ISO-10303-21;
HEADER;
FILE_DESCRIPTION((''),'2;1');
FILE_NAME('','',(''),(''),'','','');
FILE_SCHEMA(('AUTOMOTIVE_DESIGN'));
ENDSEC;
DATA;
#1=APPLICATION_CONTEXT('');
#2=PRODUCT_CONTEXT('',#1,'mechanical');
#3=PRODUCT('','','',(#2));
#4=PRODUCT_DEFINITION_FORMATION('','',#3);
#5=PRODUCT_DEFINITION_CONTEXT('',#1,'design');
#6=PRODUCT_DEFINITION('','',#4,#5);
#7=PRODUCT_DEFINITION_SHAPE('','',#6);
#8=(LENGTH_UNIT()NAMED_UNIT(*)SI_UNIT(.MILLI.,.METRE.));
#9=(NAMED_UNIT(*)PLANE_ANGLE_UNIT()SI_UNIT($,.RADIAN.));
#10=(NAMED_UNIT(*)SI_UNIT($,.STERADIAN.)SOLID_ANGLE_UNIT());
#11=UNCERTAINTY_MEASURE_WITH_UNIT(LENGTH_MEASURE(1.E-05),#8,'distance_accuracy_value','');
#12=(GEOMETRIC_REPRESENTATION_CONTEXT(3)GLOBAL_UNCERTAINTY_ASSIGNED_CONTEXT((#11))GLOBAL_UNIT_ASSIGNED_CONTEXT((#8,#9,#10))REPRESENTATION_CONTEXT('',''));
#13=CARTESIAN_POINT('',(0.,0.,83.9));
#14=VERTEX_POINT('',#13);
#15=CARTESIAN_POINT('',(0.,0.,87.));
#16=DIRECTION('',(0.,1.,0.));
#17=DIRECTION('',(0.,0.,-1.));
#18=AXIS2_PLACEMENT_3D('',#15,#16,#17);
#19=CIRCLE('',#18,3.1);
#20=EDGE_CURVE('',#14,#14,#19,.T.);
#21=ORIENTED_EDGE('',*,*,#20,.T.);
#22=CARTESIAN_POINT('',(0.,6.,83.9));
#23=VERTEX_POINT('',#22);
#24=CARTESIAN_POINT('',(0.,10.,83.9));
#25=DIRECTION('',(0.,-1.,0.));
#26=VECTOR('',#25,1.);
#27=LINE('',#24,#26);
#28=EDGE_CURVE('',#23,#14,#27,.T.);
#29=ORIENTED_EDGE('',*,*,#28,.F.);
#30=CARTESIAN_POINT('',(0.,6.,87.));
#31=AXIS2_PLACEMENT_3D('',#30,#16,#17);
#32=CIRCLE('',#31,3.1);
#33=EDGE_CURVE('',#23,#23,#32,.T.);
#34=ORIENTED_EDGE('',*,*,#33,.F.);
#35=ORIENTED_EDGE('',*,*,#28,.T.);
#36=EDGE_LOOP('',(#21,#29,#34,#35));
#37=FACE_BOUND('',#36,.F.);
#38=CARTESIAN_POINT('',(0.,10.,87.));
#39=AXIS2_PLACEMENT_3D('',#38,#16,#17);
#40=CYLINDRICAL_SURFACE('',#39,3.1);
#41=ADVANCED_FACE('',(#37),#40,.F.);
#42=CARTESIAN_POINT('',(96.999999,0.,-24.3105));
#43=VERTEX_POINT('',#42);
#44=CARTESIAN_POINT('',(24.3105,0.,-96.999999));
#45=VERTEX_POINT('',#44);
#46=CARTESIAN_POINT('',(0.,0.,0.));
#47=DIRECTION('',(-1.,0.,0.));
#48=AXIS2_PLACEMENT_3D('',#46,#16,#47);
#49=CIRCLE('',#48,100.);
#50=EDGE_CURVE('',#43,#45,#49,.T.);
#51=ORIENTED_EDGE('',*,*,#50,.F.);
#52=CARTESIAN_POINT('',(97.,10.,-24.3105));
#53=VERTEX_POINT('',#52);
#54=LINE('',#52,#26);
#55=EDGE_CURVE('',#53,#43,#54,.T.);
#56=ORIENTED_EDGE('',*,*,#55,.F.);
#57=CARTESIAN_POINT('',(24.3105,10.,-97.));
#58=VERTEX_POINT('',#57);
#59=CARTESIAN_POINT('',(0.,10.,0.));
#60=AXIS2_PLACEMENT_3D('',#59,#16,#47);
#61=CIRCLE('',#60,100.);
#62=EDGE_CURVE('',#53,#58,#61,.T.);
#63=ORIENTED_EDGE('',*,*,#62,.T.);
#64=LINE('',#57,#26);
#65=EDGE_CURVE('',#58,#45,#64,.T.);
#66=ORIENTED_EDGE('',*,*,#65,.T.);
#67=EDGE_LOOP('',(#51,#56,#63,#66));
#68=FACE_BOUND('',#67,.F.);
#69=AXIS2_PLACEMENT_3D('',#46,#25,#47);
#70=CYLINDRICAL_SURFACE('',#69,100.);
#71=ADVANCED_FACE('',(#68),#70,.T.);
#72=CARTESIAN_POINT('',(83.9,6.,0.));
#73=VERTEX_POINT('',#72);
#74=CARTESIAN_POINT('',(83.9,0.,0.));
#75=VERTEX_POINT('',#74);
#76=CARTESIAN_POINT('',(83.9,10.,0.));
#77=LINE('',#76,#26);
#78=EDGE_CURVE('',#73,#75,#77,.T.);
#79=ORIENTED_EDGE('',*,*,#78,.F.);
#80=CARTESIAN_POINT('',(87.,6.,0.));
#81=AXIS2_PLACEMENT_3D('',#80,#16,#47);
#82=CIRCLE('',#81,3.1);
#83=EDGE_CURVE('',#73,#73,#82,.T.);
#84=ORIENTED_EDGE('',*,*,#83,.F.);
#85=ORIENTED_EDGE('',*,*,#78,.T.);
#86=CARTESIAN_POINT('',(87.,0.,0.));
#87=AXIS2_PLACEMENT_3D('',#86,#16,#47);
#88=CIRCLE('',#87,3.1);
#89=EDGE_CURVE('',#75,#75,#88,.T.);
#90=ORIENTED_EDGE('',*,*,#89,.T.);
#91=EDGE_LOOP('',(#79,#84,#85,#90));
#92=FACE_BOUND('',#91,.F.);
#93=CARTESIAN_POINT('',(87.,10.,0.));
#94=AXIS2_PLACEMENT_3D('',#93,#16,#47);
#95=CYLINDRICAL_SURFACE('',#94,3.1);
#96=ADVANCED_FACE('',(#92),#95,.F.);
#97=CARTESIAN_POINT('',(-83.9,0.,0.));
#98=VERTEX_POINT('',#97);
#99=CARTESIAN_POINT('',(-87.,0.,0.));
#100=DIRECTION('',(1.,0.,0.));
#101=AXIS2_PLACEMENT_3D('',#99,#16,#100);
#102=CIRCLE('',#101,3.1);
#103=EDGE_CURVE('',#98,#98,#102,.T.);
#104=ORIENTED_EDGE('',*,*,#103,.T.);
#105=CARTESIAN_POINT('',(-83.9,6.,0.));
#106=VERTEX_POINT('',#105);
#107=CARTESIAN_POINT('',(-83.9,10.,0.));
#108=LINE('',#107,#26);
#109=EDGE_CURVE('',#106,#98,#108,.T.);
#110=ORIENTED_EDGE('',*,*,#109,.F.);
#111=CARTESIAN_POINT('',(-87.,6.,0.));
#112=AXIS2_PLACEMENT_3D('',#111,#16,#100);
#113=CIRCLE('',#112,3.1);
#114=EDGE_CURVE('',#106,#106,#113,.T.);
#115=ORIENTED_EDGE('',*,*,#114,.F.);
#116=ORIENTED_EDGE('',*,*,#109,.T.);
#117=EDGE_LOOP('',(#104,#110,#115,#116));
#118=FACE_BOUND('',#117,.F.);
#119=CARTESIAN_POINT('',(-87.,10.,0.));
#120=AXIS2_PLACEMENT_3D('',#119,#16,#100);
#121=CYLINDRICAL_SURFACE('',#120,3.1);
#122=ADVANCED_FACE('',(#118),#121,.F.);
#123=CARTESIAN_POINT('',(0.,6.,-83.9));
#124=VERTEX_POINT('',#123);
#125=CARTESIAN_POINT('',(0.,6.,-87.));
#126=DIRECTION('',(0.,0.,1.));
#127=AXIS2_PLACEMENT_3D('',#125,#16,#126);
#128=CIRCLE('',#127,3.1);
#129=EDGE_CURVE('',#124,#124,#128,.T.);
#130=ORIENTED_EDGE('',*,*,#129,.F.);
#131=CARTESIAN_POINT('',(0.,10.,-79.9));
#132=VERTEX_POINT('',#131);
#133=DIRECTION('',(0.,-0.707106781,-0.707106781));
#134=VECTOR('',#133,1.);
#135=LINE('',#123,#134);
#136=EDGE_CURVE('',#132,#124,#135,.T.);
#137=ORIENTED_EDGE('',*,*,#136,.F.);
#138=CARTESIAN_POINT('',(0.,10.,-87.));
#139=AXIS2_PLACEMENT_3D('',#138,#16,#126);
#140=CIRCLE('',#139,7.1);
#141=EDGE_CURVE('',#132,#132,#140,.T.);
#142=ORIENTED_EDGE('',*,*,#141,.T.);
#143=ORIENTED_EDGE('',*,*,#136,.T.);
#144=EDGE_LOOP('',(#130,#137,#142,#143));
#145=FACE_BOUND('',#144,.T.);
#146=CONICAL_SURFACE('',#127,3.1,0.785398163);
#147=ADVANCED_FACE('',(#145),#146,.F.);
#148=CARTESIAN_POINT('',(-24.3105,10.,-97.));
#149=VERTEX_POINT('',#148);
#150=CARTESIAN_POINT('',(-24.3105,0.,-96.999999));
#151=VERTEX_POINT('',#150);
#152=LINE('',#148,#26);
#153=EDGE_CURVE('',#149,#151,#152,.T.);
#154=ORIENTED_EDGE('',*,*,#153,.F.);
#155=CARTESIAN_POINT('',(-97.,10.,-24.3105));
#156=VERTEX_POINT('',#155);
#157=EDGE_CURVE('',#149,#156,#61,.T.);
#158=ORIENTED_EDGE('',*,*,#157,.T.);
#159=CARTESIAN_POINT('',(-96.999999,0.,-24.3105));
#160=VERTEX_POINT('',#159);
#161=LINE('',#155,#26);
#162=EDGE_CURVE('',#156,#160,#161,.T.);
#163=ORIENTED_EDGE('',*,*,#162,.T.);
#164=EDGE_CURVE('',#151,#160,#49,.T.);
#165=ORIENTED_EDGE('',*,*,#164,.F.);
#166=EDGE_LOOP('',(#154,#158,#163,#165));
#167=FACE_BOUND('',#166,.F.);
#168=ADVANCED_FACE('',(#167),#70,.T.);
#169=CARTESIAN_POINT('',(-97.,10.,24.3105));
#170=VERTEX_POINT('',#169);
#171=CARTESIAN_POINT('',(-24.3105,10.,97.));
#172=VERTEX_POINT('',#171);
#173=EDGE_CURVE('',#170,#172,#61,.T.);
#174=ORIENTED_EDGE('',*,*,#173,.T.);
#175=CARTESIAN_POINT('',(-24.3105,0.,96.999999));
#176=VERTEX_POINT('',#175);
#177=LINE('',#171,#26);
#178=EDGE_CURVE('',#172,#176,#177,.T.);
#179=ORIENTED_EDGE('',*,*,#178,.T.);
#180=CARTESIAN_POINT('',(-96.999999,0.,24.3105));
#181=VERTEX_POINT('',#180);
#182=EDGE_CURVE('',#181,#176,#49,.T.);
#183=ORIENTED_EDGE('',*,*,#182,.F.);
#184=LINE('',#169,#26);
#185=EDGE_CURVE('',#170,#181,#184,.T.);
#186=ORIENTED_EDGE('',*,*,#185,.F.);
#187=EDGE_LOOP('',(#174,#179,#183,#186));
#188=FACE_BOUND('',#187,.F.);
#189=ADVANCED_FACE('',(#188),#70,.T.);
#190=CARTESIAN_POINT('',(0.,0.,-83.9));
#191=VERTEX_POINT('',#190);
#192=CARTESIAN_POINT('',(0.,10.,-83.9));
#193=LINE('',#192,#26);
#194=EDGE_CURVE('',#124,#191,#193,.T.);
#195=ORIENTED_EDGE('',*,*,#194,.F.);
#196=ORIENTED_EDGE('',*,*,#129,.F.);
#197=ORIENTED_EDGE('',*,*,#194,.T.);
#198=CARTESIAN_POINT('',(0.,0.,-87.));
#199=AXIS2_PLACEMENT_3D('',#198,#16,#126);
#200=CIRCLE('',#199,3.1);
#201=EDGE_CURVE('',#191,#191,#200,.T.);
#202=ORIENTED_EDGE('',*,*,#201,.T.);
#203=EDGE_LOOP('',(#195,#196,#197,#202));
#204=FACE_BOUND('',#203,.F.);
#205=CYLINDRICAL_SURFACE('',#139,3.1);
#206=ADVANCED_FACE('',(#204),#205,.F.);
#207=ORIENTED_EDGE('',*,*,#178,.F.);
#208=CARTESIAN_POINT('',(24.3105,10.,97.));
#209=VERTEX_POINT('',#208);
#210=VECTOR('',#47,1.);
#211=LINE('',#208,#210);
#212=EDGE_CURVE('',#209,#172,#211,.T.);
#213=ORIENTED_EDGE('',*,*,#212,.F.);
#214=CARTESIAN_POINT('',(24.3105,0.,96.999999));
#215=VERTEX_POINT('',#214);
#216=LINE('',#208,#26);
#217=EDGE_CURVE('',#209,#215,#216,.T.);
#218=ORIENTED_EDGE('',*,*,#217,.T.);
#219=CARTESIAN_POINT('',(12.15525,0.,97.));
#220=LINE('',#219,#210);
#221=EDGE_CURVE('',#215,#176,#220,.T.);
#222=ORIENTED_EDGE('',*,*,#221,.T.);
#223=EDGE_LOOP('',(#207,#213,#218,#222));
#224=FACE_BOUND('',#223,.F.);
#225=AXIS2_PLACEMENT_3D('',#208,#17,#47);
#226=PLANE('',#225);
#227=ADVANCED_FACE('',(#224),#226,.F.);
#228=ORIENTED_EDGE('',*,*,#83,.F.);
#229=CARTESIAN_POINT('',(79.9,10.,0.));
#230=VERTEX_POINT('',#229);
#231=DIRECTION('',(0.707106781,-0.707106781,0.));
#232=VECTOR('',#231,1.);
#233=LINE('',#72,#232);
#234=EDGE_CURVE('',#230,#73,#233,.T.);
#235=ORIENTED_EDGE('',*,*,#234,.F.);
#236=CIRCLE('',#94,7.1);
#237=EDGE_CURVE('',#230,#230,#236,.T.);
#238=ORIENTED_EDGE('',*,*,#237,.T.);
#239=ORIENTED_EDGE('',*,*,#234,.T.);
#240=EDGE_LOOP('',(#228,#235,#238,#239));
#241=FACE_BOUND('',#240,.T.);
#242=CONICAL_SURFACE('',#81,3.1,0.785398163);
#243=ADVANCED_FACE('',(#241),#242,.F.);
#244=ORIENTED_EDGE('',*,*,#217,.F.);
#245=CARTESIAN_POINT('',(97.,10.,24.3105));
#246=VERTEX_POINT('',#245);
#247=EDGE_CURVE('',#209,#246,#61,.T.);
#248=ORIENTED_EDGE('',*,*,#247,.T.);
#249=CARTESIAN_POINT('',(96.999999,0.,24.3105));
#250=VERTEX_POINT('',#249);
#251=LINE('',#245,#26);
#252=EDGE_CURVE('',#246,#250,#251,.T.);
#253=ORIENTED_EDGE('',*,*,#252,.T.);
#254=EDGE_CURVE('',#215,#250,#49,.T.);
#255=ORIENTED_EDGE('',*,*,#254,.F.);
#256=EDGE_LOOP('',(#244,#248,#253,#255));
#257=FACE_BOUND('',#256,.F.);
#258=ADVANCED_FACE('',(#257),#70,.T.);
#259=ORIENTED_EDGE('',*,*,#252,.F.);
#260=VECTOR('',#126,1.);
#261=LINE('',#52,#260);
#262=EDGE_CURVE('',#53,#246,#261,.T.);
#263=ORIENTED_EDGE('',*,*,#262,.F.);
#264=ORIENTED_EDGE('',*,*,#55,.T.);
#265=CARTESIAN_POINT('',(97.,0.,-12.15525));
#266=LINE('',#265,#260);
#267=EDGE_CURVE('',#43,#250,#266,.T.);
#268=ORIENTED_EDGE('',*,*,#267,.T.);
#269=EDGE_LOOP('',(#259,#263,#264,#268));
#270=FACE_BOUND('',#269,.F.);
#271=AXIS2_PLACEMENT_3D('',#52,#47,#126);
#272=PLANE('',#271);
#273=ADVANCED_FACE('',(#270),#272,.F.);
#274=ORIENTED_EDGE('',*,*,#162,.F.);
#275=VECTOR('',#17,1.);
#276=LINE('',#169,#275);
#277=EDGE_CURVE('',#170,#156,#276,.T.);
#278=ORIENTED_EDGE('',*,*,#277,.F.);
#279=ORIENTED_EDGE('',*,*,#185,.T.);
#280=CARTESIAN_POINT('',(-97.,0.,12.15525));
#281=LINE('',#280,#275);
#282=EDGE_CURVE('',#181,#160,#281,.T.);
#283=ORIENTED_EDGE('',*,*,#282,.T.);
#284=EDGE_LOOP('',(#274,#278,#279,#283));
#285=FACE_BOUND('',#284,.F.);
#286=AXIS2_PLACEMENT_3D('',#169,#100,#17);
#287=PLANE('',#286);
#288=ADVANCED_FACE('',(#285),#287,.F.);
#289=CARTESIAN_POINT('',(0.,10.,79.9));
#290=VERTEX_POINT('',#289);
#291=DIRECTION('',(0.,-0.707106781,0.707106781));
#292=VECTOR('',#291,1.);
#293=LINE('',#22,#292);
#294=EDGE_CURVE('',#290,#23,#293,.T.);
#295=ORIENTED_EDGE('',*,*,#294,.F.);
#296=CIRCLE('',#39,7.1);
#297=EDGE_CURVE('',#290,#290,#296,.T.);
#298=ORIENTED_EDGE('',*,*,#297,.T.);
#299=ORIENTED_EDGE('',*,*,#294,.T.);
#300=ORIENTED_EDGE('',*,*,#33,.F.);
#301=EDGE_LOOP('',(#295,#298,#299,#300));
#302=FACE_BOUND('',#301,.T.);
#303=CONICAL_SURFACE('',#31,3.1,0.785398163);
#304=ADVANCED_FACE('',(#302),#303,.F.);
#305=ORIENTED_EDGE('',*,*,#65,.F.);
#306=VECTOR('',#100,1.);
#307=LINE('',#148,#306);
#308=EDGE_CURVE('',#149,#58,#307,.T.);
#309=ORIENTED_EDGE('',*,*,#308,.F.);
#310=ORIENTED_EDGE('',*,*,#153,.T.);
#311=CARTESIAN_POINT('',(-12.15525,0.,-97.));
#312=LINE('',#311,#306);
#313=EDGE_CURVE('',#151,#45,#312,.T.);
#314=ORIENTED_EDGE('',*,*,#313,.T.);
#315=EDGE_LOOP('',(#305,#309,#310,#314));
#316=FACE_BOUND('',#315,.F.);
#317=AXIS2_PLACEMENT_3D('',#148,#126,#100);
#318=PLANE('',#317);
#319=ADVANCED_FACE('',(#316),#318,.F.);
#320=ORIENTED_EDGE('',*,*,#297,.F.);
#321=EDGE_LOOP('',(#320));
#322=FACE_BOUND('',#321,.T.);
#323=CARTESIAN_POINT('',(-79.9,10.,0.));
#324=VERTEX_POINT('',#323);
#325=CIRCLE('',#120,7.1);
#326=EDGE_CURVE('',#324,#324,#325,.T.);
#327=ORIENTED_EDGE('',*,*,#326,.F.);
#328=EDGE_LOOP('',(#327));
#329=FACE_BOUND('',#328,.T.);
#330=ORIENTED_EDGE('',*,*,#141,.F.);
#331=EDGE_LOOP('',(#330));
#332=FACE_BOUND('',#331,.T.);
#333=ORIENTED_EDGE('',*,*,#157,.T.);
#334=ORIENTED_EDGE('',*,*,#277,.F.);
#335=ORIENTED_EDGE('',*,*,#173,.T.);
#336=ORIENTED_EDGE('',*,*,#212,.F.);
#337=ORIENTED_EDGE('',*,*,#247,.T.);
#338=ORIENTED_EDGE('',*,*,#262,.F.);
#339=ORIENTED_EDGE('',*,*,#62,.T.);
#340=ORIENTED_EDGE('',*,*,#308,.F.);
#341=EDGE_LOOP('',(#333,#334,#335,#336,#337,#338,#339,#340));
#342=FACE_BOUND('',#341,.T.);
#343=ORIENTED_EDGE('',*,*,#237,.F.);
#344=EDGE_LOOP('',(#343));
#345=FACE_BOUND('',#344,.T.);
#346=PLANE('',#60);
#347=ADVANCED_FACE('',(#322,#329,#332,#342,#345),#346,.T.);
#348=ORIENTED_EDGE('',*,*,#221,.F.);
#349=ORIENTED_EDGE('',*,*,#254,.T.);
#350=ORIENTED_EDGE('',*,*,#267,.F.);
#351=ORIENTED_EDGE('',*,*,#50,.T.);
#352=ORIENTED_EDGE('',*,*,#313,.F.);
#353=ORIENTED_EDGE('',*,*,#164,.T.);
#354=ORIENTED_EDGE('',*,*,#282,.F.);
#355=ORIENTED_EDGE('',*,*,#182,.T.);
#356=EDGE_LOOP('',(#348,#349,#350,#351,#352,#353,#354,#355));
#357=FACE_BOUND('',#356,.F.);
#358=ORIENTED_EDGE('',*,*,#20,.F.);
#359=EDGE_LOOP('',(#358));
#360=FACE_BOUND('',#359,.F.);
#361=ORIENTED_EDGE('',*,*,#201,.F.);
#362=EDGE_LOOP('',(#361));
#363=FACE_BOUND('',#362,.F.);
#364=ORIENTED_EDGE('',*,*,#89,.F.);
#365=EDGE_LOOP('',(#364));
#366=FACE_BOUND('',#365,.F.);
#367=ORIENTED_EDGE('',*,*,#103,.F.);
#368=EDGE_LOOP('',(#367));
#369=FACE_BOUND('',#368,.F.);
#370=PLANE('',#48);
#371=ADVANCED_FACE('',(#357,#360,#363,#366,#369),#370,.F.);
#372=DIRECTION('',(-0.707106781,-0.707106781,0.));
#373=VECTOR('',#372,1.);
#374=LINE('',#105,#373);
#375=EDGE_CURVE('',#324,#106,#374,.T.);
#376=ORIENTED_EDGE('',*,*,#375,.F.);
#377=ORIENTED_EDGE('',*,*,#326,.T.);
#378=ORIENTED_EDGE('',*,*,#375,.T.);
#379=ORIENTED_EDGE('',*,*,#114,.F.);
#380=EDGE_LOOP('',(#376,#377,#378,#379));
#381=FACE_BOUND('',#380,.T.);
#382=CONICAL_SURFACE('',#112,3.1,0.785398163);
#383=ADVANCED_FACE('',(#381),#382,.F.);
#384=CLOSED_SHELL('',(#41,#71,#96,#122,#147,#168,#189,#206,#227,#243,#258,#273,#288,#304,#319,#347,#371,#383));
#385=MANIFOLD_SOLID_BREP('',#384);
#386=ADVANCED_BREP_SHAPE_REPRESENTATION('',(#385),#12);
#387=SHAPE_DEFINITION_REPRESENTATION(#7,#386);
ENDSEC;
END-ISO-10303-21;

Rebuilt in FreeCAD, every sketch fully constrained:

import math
import FreeCAD as App
import Part
import Sketcher

V = App.Vector


def edges_at(feature, points):
    """Names of the edges that pass closest to the given points."""
    edges = feature.Shape.Edges
    near = lambda p: min(range(len(edges)), key=lambda i: edges[i].distToShape(Part.Vertex(*p))[0])
    return sorted({f"Edge{near(p) + 1}" for p in points})

doc = App.newDocument("Part")
body = doc.addObject("PartDesign::Body", "Body")

# Sketch on XZ plane
sketch1 = body.newObject("Sketcher::SketchObject", "Sketch")
sketch1.AttachmentSupport = (doc.getObject("XZ_Plane"), [""])
sketch1.MapMode = "FlatFace"
sketch1.addGeometry(Part.Circle(V(0, 0, 0), V(0, 0, 1), 100), False)
sketch1.addConstraint([
    Sketcher.Constraint("Coincident", 0, 3, -1, 1),
    Sketcher.Constraint("Diameter", 0, 200.0),
])
pad1 = body.newObject("PartDesign::Pad", "Pad")
pad1.Profile = sketch1
pad1.Length = 10
pad1.Reversed = True

# Sketch on XZ plane
sketch2 = body.newObject("Sketcher::SketchObject", "Sketch001")
sketch2.AttachmentSupport = (doc.getObject("XZ_Plane"), [""])
sketch2.MapMode = "FlatFace"
sketch2.AttachmentOffset = App.Placement(V(0, 0, -10), App.Rotation())
sketch2.addGeometry(Part.Circle(V(-87, 0, 0), V(0, 0, 1), 3.1), False)
sketch2.addConstraint([
    Sketcher.Constraint("PointOnObject", 0, 3, -1),
    Sketcher.Constraint("Diameter", 0, 6.2),
    Sketcher.Constraint("DistanceX", 0, 3, -1, 1, 87.0),
])
pocket1 = body.newObject("PartDesign::Pocket", "Pocket")
pocket1.Profile = sketch2
pocket1.Type = "ThroughAll"
pocket1.Reversed = True

# Sketch on XZ plane
sketch3 = body.newObject("Sketcher::SketchObject", "Sketch002")
sketch3.AttachmentSupport = (doc.getObject("XZ_Plane"), [""])
sketch3.MapMode = "FlatFace"
sketch3.AttachmentOffset = App.Placement(V(0, 0, -10), App.Rotation())
sketch3.addGeometry([
    Part.LineSegment(V(-97, 24, 0), V(-97, -24, 0)),
    Part.ArcOfCircle(Part.Circle(V(0, 0, 0), V(0, 0, 1), 100), math.radians(166), math.radians(194)),
], False)
sketch3.addConstraint([
    Sketcher.Constraint("Coincident", 0, 1, 1, 1),
    Sketcher.Constraint("Coincident", 1, 2, 0, 2),
    Sketcher.Constraint("Vertical", 0),
    Sketcher.Constraint("Coincident", 1, 3, -1, 1),
    Sketcher.Constraint("Radius", 1, 100.0),
    Sketcher.Constraint("DistanceX", 0, 1, -1, 1, 97.0),
])
pocket2 = body.newObject("PartDesign::Pocket", "Pocket001")
pocket2.Profile = sketch3
pocket2.Type = "ThroughAll"
pocket2.Reversed = True
doc.recompute()

polarpattern = body.newObject("PartDesign::PolarPattern", "PolarPattern")
polarpattern.Originals = [pocket1]
polarpattern.Axis = (doc.getObject("Y_Axis"), [""])
polarpattern.Angle = 360
polarpattern.Occurrences = 4
body.Tip = polarpattern
doc.recompute()

polarpattern2 = body.newObject("PartDesign::PolarPattern", "PolarPattern001")
polarpattern2.Originals = [pocket2]
polarpattern2.Axis = (doc.getObject("Y_Axis"), [""])
polarpattern2.Angle = 360
polarpattern2.Occurrences = 4
body.Tip = polarpattern2
doc.recompute()

chamfer = body.newObject("PartDesign::Chamfer", "Chamfer")
chamfer.Base = (polarpattern2, edges_at(polarpattern2, [
    (-90.1, 10, 0),
    (0, 10, -90.1),
    (90.1, 10, 0),
    (0, 10, 90.1),
]))
chamfer.Size = 4

doc.recompute()
